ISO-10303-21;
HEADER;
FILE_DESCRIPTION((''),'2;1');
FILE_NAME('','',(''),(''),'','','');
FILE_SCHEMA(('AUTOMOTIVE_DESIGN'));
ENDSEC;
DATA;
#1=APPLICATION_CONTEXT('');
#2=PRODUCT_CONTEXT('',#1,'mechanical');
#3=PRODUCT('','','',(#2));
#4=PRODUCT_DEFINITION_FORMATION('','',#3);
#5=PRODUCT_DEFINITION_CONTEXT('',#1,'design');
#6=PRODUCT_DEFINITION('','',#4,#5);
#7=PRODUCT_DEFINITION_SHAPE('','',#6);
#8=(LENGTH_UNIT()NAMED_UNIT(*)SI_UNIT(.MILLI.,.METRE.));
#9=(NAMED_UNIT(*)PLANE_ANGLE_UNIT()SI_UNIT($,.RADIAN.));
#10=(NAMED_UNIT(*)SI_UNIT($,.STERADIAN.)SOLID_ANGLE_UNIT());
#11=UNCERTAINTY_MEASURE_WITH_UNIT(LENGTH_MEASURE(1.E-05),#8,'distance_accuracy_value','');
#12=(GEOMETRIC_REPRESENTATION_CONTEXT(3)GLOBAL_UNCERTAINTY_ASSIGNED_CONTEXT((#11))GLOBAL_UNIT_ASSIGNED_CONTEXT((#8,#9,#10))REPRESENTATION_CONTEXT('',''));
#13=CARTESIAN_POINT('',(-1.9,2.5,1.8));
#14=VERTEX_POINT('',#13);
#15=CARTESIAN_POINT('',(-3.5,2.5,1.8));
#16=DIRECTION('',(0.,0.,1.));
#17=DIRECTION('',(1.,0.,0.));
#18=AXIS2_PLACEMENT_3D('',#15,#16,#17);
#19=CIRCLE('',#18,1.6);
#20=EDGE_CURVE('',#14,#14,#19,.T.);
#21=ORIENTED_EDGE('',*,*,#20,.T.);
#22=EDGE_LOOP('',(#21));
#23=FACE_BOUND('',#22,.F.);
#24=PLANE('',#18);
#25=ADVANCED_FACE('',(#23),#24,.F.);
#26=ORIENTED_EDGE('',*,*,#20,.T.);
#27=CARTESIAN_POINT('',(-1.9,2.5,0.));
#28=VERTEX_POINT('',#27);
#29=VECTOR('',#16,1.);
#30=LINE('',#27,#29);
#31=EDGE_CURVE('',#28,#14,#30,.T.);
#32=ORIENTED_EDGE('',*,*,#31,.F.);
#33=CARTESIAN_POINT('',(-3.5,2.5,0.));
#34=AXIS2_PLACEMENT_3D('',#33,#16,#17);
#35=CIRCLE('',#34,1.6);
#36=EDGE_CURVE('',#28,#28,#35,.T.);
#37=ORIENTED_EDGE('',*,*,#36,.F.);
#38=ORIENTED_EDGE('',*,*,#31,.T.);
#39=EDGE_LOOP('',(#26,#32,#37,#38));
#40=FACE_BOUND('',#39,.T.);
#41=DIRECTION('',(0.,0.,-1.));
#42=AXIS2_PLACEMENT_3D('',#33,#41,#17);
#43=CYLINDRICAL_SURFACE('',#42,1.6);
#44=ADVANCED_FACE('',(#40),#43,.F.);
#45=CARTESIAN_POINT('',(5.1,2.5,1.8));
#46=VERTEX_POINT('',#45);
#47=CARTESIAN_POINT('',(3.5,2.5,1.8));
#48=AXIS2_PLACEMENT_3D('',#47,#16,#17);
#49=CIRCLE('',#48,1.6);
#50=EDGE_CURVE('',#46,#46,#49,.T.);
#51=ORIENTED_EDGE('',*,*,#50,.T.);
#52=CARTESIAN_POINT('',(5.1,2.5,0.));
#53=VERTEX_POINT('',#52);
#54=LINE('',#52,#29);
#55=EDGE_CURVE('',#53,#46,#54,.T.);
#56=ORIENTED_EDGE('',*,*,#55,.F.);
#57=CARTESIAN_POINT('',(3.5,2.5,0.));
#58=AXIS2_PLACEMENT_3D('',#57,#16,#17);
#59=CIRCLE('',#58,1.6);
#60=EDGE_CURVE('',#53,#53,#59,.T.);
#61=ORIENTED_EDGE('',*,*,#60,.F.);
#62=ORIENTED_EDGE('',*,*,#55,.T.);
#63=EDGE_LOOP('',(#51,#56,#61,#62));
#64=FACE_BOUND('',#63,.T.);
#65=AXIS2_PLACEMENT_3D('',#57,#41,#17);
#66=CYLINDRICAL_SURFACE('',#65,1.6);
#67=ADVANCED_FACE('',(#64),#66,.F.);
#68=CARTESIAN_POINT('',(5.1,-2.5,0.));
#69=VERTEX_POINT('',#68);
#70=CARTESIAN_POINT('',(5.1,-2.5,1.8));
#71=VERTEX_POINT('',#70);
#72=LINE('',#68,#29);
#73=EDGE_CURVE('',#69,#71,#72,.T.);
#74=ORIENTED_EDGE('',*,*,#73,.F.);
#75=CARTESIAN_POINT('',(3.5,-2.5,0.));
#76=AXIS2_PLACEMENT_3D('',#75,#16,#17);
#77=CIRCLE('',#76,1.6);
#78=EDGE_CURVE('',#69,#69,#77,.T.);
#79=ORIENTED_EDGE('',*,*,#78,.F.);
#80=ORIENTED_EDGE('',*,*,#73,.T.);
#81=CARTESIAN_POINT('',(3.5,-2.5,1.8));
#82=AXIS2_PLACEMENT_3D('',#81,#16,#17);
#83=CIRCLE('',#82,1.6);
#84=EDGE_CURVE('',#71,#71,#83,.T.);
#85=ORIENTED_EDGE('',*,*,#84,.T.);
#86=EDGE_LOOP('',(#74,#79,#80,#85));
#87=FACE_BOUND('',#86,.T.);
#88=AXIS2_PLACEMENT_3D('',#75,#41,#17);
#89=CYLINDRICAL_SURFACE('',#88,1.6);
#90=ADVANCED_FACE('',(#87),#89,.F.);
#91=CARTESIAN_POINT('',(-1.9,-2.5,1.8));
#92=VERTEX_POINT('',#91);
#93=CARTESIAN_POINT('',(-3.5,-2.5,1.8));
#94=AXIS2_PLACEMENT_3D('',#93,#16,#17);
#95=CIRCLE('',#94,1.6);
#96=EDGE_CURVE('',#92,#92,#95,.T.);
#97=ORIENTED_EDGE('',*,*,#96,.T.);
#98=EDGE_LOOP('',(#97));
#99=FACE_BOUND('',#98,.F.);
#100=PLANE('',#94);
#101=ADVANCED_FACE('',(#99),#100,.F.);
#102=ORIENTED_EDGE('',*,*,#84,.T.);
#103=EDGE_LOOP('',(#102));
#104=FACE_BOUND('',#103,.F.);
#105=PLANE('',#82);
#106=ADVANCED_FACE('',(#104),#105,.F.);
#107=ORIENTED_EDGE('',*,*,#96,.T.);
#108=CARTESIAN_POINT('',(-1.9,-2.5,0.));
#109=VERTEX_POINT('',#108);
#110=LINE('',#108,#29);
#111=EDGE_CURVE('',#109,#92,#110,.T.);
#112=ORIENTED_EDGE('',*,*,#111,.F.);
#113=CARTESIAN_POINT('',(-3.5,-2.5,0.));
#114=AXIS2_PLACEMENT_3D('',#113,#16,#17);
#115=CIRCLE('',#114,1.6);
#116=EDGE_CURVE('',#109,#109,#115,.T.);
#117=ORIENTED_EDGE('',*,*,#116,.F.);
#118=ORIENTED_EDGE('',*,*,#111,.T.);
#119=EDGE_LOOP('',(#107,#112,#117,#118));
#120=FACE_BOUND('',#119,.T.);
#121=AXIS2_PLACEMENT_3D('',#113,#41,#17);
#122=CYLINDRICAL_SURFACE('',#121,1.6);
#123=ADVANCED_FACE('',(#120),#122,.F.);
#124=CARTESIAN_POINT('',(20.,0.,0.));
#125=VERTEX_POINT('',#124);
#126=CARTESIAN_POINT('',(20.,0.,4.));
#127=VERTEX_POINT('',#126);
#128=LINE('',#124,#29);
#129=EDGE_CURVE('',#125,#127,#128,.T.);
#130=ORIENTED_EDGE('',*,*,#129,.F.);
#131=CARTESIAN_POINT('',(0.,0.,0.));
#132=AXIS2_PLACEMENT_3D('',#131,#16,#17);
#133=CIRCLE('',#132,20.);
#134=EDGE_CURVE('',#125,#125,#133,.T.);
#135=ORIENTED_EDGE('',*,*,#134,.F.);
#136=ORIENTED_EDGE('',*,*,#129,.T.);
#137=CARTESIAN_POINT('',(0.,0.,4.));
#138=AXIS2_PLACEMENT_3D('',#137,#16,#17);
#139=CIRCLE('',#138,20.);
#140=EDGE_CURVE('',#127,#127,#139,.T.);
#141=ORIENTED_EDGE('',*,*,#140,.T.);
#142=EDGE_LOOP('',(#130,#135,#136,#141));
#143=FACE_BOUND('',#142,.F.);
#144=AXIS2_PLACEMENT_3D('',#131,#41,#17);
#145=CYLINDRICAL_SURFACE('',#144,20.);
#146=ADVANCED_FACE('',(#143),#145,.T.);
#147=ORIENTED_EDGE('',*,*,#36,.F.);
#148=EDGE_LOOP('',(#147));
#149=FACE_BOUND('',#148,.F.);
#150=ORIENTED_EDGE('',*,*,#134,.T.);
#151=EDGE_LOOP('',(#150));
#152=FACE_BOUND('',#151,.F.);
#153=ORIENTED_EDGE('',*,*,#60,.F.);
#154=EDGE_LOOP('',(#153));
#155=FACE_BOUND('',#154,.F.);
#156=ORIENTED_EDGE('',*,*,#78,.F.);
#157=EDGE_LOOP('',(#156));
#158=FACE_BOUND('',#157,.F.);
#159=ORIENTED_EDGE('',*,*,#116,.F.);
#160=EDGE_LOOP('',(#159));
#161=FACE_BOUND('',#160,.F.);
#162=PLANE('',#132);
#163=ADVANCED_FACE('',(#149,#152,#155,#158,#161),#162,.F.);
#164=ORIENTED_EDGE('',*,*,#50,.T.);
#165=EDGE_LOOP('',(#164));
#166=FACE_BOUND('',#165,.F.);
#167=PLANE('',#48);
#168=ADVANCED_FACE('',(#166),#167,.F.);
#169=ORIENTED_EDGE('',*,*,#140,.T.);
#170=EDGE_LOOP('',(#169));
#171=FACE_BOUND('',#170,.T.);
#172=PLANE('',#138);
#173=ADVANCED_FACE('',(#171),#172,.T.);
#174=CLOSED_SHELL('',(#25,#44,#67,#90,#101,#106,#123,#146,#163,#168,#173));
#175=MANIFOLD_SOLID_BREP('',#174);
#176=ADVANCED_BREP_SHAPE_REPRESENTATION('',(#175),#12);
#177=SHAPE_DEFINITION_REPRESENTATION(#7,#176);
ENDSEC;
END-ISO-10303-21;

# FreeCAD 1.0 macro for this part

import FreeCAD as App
import Part
import Sketcher
from FreeCAD import Vector

doc = App.newDocument("Part")
body = doc.addObject("PartDesign::Body", "Body")

sketch1 = doc.addObject("Sketcher::SketchObject", "Sketch")
body.addObject(sketch1)
sketch1.AttachmentSupport = (doc.XY_Plane, [""])
sketch1.MapMode = "FlatFace"
sketch1.addGeometry(Part.Circle(Vector(0, 0, 0), Vector(0, 0, 1), 20), False)
sketch1.addConstraint([
    Sketcher.Constraint("Coincident", 0, 3, -1, 1),
    Sketcher.Constraint("Diameter", 0, 40.0),
])
pad1 = doc.addObject("PartDesign::Pad", "Pad")
body.addObject(pad1)
pad1.Profile = sketch1
pad1.Length = 4

sketch2 = doc.addObject("Sketcher::SketchObject", "Sketch001")
body.addObject(sketch2)
sketch2.AttachmentSupport = (doc.XY_Plane, [""])
sketch2.MapMode = "FlatFace"
sketch2.addGeometry([
    Part.Circle(Vector(-3.5, 2.5, 0), Vector(0, 0, 1), 1.6),
    Part.Circle(Vector(-3.5, -2.5, 0), Vector(0, 0, 1), 1.6),
    Part.Circle(Vector(3.5, -2.5, 0), Vector(0, 0, 1), 1.6),
    Part.Circle(Vector(3.5, 2.5, 0), Vector(0, 0, 1), 1.6),
], False)
sketch2.addConstraint([
    Sketcher.Constraint("Equal", 0, 1),
    Sketcher.Constraint("Equal", 1, 2),
    Sketcher.Constraint("Equal", 2, 3),
    Sketcher.Constraint("Symmetric", 0, 3, 2, 3, -1, 1),
    Sketcher.Constraint("Symmetric", 1, 3, 3, 3, -1, 1),
    Sketcher.Constraint("Symmetric", 1, 3, 2, 3, -2),
    Sketcher.Constraint("Diameter", 0, 3.2),
    Sketcher.Constraint("DistanceY", 1, 3, 0, 3, 5.0),
    Sketcher.Constraint("DistanceX", 1, 3, 2, 3, 7.0),
])
pocket1 = doc.addObject("PartDesign::Pocket", "Pocket")
body.addObject(pocket1)
pocket1.Profile = sketch2
pocket1.Length = 1.8
pocket1.Reversed = True

doc.recompute()
